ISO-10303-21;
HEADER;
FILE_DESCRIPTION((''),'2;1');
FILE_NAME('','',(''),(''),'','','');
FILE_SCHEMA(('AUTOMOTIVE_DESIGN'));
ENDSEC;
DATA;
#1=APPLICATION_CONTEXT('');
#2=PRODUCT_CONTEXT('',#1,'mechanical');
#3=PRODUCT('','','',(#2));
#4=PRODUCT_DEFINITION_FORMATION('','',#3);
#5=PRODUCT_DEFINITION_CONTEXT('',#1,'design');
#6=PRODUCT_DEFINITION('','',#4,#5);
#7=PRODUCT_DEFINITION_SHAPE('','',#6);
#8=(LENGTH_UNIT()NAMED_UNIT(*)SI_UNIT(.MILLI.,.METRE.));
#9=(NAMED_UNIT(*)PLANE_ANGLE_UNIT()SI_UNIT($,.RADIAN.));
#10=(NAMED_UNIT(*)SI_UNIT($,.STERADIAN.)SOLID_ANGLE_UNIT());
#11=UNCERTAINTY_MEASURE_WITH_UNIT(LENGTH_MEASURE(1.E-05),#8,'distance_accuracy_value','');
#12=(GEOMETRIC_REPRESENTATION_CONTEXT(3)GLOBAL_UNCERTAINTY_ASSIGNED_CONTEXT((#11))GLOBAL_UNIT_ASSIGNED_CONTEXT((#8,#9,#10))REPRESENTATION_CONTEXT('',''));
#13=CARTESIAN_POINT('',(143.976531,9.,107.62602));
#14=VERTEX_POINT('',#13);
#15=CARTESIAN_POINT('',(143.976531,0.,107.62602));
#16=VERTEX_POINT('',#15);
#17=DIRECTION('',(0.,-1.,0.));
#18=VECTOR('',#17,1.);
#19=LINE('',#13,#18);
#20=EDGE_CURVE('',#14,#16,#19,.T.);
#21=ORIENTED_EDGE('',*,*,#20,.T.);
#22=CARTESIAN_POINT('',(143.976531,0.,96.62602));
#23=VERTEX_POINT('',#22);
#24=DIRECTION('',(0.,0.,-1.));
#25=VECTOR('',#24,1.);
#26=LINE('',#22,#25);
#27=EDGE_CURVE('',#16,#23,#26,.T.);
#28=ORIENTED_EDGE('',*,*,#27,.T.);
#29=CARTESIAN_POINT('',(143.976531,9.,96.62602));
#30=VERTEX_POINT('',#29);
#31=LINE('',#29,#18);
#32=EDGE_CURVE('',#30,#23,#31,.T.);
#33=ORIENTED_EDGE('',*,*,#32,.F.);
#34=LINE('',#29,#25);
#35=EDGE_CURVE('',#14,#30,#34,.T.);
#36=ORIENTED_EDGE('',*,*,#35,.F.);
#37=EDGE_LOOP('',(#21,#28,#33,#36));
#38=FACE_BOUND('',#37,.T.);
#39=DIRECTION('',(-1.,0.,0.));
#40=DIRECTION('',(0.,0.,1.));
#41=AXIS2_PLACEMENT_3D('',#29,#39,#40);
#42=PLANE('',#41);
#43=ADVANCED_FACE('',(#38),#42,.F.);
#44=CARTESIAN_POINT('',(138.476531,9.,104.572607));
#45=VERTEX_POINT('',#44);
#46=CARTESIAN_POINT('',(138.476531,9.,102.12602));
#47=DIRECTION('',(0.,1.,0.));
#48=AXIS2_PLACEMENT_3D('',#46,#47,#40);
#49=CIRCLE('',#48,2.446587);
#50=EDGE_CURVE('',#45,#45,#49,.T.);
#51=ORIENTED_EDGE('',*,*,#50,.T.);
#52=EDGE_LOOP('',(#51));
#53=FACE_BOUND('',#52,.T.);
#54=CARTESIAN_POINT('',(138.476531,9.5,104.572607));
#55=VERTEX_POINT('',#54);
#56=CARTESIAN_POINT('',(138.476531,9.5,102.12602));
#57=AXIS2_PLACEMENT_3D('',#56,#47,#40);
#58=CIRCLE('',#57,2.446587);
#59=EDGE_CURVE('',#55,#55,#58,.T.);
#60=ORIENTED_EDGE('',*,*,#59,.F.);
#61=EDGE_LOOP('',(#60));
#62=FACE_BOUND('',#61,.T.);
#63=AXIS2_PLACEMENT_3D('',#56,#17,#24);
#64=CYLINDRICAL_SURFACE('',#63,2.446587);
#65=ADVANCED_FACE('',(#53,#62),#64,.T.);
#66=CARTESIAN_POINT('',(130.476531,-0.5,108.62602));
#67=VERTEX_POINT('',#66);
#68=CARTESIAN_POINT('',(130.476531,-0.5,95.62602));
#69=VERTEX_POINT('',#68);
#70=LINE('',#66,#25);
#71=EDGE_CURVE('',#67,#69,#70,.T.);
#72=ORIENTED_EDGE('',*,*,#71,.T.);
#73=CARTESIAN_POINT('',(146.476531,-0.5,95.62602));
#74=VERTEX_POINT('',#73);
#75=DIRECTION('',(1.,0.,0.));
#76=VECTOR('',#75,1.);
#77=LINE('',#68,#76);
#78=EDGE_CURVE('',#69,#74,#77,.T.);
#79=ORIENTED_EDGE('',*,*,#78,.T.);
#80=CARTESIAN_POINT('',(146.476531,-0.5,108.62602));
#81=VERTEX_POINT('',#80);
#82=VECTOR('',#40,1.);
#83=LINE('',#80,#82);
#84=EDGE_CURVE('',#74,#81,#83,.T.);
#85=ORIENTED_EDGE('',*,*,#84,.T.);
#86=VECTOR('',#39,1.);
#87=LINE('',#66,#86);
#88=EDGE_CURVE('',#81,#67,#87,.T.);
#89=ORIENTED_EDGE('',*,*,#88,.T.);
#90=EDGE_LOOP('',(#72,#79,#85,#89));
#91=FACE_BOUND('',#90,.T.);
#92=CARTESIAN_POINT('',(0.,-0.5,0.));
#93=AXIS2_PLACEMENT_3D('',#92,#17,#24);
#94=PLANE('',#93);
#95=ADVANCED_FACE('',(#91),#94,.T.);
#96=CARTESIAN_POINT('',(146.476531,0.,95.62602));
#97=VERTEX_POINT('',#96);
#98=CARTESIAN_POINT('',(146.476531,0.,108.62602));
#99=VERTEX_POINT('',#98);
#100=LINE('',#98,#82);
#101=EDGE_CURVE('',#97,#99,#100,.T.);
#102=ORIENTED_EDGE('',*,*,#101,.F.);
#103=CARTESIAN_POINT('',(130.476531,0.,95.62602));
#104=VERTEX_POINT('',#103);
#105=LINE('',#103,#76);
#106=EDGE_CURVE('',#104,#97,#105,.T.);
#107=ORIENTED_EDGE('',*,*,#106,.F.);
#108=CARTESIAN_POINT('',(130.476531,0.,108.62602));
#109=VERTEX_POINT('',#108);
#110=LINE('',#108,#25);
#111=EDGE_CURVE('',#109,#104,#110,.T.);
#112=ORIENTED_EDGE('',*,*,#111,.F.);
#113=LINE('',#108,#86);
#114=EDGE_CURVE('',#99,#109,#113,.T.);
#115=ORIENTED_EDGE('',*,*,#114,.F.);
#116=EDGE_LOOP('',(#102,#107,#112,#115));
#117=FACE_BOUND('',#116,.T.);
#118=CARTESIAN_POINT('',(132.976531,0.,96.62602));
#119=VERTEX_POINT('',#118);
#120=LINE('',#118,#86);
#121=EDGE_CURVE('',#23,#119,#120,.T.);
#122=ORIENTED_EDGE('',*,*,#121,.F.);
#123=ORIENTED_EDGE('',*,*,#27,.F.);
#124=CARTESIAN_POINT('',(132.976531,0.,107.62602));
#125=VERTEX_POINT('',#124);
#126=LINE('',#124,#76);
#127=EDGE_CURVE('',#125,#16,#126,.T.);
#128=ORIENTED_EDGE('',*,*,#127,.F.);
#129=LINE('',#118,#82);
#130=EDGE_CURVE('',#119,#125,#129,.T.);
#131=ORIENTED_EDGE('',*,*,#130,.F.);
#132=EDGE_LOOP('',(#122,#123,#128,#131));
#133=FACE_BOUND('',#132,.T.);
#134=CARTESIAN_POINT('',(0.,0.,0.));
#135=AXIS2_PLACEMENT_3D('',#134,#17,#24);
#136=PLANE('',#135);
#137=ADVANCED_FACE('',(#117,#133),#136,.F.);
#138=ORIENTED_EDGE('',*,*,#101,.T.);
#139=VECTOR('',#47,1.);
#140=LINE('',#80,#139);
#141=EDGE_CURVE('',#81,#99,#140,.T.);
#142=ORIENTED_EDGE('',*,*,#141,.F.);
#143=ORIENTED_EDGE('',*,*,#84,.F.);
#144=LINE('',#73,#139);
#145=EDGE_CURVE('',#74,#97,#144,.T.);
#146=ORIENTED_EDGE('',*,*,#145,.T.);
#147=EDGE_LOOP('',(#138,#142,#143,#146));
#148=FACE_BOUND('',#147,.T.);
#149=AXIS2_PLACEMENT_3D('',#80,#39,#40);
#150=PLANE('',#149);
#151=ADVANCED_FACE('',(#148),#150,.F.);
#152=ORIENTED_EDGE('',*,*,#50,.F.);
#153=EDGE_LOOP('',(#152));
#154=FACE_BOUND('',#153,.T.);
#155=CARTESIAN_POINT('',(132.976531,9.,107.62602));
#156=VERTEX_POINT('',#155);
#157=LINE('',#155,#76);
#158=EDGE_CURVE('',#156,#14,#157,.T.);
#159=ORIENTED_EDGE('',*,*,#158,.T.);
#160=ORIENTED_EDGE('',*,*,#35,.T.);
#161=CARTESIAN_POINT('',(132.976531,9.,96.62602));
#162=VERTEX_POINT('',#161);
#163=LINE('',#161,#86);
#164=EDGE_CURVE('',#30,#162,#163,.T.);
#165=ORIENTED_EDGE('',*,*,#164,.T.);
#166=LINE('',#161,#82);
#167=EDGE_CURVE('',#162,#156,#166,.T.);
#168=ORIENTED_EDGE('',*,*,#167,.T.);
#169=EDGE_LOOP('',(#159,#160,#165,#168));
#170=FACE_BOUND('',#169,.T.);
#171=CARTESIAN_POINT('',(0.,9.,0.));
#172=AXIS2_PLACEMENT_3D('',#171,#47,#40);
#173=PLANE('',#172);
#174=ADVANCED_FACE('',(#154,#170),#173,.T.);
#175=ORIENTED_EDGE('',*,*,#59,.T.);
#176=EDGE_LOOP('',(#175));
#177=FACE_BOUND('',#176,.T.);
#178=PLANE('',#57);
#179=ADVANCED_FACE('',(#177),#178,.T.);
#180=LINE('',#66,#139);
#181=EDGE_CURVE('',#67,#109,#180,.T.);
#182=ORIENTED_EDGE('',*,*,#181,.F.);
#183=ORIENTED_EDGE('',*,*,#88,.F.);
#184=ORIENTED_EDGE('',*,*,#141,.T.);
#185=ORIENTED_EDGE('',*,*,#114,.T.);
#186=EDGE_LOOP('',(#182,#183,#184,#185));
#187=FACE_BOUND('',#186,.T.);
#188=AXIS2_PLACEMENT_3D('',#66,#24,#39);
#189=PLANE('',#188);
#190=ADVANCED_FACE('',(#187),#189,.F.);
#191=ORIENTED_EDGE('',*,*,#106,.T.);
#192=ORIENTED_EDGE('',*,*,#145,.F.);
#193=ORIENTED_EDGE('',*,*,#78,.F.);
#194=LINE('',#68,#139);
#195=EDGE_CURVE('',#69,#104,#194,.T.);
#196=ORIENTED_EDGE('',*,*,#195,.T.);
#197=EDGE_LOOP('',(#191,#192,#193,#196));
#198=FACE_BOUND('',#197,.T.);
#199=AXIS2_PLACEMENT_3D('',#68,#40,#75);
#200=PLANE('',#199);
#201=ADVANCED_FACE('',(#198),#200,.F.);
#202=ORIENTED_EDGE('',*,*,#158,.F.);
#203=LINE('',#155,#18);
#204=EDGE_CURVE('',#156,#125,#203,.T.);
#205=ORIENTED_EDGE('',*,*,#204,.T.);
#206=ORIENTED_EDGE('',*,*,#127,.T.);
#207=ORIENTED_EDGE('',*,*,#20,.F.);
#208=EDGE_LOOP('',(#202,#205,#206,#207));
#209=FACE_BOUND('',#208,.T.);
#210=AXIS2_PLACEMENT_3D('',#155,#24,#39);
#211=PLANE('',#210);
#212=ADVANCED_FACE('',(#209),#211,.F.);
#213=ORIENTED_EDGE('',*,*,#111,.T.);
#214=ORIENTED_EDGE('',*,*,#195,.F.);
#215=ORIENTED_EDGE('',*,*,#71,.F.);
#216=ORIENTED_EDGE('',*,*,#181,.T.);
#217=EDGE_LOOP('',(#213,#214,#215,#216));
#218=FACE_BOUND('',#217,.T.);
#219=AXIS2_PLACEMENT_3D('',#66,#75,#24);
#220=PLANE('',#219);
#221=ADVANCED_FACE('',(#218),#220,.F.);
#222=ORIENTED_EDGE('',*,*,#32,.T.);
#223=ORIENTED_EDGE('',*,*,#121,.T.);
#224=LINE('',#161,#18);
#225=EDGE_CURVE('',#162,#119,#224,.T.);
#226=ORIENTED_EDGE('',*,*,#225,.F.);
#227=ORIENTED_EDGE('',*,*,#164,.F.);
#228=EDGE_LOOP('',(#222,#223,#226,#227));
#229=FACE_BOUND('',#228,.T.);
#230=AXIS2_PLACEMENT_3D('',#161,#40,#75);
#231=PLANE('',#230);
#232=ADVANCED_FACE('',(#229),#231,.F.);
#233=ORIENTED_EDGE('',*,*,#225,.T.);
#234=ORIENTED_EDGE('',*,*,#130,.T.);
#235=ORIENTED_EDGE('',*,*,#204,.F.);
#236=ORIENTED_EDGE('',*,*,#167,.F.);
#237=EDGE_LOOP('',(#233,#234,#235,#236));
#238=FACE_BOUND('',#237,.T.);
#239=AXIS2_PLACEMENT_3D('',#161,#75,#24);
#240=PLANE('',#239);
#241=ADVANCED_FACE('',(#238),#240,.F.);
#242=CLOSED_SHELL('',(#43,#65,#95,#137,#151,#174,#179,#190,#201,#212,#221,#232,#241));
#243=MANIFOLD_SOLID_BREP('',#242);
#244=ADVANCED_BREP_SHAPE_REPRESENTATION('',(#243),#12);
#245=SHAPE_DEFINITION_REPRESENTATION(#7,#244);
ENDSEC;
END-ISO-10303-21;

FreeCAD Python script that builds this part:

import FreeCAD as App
import Part
import Sketcher

V = App.Vector

doc = App.newDocument("Part")
body = doc.addObject("PartDesign::Body", "Body")

# Sketch on XZ plane
sketch1 = body.newObject("Sketcher::SketchObject", "Sketch")
sketch1.AttachmentSupport = (doc.getObject("XZ_Plane"), [""])
sketch1.MapMode = "FlatFace"
sketch1.addGeometry(Part.LineSegment(V(133, 97, 0), V(133, 108, 0)), False)
sketch1.addGeometry(Part.LineSegment(V(133, 108, 0), V(144, 108, 0)), False)
sketch1.addGeometry(Part.LineSegment(V(144, 108, 0), V(144, 97, 0)), False)
sketch1.addGeometry(Part.LineSegment(V(144, 97, 0), V(133, 97, 0)), False)
sketch1.addConstraint(Sketcher.Constraint("Coincident", 0, 2, 1, 1))
sketch1.addConstraint(Sketcher.Constraint("Coincident", 1, 2, 2, 1))
sketch1.addConstraint(Sketcher.Constraint("Coincident", 2, 2, 3, 1))
sketch1.addConstraint(Sketcher.Constraint("Coincident", 3, 2, 0, 1))
sketch1.addConstraint(Sketcher.Constraint("Vertical", 0))
sketch1.addConstraint(Sketcher.Constraint("Horizontal", 1))
sketch1.addConstraint(Sketcher.Constraint("Vertical", 2))
sketch1.addConstraint(Sketcher.Constraint("Horizontal", 3))
sketch1.addConstraint(Sketcher.Constraint("Equal", 3, 0))
sketch1.addConstraint(Sketcher.Constraint("DistanceX", 1, 1, 1, 2, 11.0))
sketch1.addConstraint(Sketcher.Constraint("DistanceX", -1, 1, 0, 2, 132.976531))
sketch1.addConstraint(Sketcher.Constraint("DistanceY", -1, 1, 0, 2, 107.62602))
pad1 = body.newObject("PartDesign::Pad", "Pad")
pad1.Profile = sketch1
pad1.Length = 9
pad1.Reversed = True

# Sketch on XZ plane
sketch2 = body.newObject("Sketcher::SketchObject", "Sketch001")
sketch2.AttachmentSupport = (doc.getObject("XZ_Plane"), [""])
sketch2.MapMode = "FlatFace"
sketch2.addGeometry(Part.LineSegment(V(130, 109, 0), V(130, 96, 0)), False)
sketch2.addGeometry(Part.LineSegment(V(130, 96, 0), V(146, 96, 0)), False)
sketch2.addGeometry(Part.LineSegment(V(146, 96, 0), V(146, 109, 0)), False)
sketch2.addGeometry(Part.LineSegment(V(146, 109, 0), V(130, 109, 0)), False)
sketch2.addConstraint(Sketcher.Constraint("Coincident", 0, 2, 1, 1))
sketch2.addConstraint(Sketcher.Constraint("Coincident", 1, 2, 2, 1))
sketch2.addConstraint(Sketcher.Constraint("Coincident", 2, 2, 3, 1))
sketch2.addConstraint(Sketcher.Constraint("Coincident", 3, 2, 0, 1))
sketch2.addConstraint(Sketcher.Constraint("Vertical", 0))
sketch2.addConstraint(Sketcher.Constraint("Horizontal", 1))
sketch2.addConstraint(Sketcher.Constraint("Vertical", 2))
sketch2.addConstraint(Sketcher.Constraint("Horizontal", 3))
sketch2.addConstraint(Sketcher.Constraint("DistanceX", 1, 1, 1, 2, 16.0))
sketch2.addConstraint(Sketcher.Constraint("DistanceY", 0, 2, 0, 1, 13.0))
sketch2.addConstraint(Sketcher.Constraint("DistanceX", -1, 1, 0, 2, 130.476531))
sketch2.addConstraint(Sketcher.Constraint("DistanceY", -1, 1, 0, 2, 95.62602))
pad2 = body.newObject("PartDesign::Pad", "Pad001")
pad2.Profile = sketch2
pad2.Length = 0.5

# Sketch on XZ plane
sketch3 = body.newObject("Sketcher::SketchObject", "Sketch002")
sketch3.AttachmentSupport = (doc.getObject("XZ_Plane"), [""])
sketch3.MapMode = "FlatFace"
sketch3.AttachmentOffset = App.Placement(V(0, 0, -9), App.Rotation())
sketch3.addGeometry(Part.Circle(V(138.5, 102.1, 0), V(0, 0, 1), 2.4), False)
sketch3.addConstraint(Sketcher.Constraint("Diameter", 0, 4.893174))
sketch3.addConstraint(Sketcher.Constraint("DistanceX", -1, 1, 0, 3, 138.476531))
sketch3.addConstraint(Sketcher.Constraint("DistanceY", -1, 1, 0, 3, 102.12602))
pad3 = body.newObject("PartDesign::Pad", "Pad002")
pad3.Profile = sketch3
pad3.Length = 0.5
pad3.Reversed = True

doc.recompute()
